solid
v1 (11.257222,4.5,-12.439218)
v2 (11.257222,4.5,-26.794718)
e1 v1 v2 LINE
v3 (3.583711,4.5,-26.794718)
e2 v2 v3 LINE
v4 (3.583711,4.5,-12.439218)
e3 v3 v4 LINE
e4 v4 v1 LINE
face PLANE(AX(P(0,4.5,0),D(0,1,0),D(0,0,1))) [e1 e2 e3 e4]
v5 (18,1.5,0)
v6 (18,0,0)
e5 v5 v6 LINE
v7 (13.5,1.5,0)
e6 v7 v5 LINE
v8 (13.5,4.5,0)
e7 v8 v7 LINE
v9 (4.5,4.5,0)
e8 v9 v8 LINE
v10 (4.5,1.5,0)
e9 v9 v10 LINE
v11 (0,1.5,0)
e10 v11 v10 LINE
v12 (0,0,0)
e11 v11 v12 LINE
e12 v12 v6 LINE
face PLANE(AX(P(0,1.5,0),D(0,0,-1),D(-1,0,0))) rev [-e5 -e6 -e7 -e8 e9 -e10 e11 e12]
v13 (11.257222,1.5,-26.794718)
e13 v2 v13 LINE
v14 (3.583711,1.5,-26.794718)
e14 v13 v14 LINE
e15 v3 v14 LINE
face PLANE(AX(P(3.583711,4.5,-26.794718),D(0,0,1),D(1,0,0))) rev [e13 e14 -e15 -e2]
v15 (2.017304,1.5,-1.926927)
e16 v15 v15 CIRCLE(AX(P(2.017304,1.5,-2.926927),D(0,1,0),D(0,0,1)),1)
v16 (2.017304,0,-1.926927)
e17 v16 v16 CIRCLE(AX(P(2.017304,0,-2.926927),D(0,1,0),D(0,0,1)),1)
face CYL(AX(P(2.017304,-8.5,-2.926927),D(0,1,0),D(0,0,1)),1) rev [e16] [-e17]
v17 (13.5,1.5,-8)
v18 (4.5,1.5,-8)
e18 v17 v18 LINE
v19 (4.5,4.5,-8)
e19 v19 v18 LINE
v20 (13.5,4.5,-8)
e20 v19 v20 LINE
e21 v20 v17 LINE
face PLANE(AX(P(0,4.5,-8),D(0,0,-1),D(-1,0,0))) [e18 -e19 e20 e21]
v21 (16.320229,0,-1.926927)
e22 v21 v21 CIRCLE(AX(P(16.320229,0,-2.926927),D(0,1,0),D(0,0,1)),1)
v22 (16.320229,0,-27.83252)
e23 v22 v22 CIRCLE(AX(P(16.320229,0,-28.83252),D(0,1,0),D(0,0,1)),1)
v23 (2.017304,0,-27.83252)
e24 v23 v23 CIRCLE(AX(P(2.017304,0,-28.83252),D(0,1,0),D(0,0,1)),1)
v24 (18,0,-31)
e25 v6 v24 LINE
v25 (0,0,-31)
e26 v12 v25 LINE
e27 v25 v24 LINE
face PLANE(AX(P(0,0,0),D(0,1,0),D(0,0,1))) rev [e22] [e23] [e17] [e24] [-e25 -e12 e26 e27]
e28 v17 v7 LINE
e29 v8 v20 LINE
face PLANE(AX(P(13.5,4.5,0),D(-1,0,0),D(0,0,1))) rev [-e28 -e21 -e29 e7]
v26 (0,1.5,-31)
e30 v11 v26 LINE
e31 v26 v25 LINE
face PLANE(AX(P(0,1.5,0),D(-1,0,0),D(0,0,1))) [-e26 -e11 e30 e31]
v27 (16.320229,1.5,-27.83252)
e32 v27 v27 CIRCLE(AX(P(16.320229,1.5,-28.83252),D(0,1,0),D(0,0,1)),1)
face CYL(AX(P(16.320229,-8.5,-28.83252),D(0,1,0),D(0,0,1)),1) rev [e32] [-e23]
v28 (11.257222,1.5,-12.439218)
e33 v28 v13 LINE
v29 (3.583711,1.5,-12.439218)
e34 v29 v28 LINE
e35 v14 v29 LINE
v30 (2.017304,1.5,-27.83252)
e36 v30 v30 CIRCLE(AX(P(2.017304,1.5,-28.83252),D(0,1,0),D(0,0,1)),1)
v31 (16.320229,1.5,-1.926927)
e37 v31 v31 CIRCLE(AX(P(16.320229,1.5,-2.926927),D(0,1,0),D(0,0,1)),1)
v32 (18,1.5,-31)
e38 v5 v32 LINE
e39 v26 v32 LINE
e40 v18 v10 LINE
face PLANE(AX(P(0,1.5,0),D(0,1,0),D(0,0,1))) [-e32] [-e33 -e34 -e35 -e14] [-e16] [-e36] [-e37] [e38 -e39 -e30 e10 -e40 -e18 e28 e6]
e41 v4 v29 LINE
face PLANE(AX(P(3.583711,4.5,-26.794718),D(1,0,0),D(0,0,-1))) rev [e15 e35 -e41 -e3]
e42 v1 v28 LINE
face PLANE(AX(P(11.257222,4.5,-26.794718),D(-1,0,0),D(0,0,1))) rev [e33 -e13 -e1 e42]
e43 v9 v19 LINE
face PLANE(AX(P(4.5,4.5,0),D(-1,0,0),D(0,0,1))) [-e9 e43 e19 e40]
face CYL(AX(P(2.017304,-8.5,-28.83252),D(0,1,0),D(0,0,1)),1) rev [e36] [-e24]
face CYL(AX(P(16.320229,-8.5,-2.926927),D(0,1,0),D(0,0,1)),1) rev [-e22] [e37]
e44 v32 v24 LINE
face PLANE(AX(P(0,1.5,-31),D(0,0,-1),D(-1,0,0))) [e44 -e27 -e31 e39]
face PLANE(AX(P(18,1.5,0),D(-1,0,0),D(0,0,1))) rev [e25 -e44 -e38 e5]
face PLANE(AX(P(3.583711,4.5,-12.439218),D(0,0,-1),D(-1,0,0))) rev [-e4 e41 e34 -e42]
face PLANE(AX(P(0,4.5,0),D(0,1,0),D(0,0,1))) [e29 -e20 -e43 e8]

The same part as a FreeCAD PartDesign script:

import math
import FreeCAD as App
import Part
import Sketcher

V = App.Vector
Q = App.Units.Quantity


def add_polygon(sketch, points):
    """Adds a closed chain of lines whose ends are joined by coincident constraints."""
    first, n = sketch.GeometryCount, len(points)
    for a, b in zip(points, points[1:] + points[:1]):
        sketch.addGeometry(Part.LineSegment(App.Vector(*a, 0), App.Vector(*b, 0)), False)
    for i in range(n):
        sketch.addConstraint(Sketcher.Constraint("Coincident", first + i, 2, first + (i + 1) % n, 1))

doc = App.newDocument("Part")
body = doc.addObject("PartDesign::Body", "Body")

# Sketch on XZ plane
sketch1 = body.newObject("Sketcher::SketchObject", "Sketch")
sketch1.AttachmentSupport = (doc.getObject("XZ_Plane"), [""])
sketch1.MapMode = "FlatFace"
add_polygon(sketch1, [(0, -31), (0, 0), (18, 0), (18, -31)])  # lines 0-3
sketch1.addConstraint([
    Sketcher.Constraint("Vertical", 0),
    Sketcher.Constraint("Horizontal", 1),
    Sketcher.Constraint("Vertical", 2),
    Sketcher.Constraint("Horizontal", 3),
    Sketcher.Constraint("Coincident", 0, 2, -1, 1),
    Sketcher.Constraint("DistanceX", 1, 1, 1, 2, Q("18 mm")),
    Sketcher.Constraint("DistanceY", 0, 1, 0, 2, Q("31 mm")),
])
pad1 = body.newObject("PartDesign::Pad", "Pad")
pad1.Profile = sketch1
pad1.Length = 1.5
pad1.Reversed = True

# Sketch on XZ plane
sketch2 = body.newObject("Sketcher::SketchObject", "Sketch001")
sketch2.AttachmentSupport = (doc.getObject("XZ_Plane"), [""])
sketch2.MapMode = "FlatFace"
add_polygon(sketch2, [(4, -8), (4, 0), (14, 0), (14, -8)])  # lines 0-3
sketch2.addConstraint([
    Sketcher.Constraint("Vertical", 0),
    Sketcher.Constraint("Horizontal", 1),
    Sketcher.Constraint("Vertical", 2),
    Sketcher.Constraint("Horizontal", 3),
    Sketcher.Constraint("PointOnObject", 0, 2, -1),
    Sketcher.Constraint("DistanceX", 1, 1, 1, 2, Q("9 mm")),
    Sketcher.Constraint("DistanceY", 0, 1, 0, 2, Q("8 mm")),
    Sketcher.Constraint("DistanceX", -1, 1, 0, 2, Q("4.5 mm")),
])
pad2 = body.newObject("PartDesign::Pad", "Pad001")
pad2.Profile = sketch2
pad2.Length = 4.5
pad2.Reversed = True

# Sketch on XZ plane
sketch3 = body.newObject("Sketcher::SketchObject", "Sketch002")
sketch3.AttachmentSupport = (doc.getObject("XZ_Plane"), [""])
sketch3.MapMode = "FlatFace"
sketch3.AttachmentOffset = App.Placement(V(0, 0, -1.5), App.Rotation())
add_polygon(sketch3, [(4, -27), (4, -12), (11, -12), (11, -27)])  # lines 0-3
sketch3.addConstraint([
    Sketcher.Constraint("Vertical", 0),
    Sketcher.Constraint("Horizontal", 1),
    Sketcher.Constraint("Vertical", 2),
    Sketcher.Constraint("Horizontal", 3),
    Sketcher.Constraint("DistanceY", 0, 1, 0, 2, Q("14.355501 mm")),
    Sketcher.Constraint("DistanceX", 1, 1, 1, 2, Q("7.673511 mm")),
    Sketcher.Constraint("DistanceX", -1, 1, 0, 2, Q("3.583711 mm")),
    Sketcher.Constraint("DistanceY", 2, 2, -1, 1, Q("26.794718 mm")),
])
pad3 = body.newObject("PartDesign::Pad", "Pad002")
pad3.Profile = sketch3
pad3.Length = 3
pad3.Reversed = True

# Sketch on XZ plane
sketch4 = body.newObject("Sketcher::SketchObject", "Sketch003")
sketch4.AttachmentSupport = (doc.getObject("XZ_Plane"), [""])
sketch4.MapMode = "FlatFace"
sketch4.AttachmentOffset = App.Placement(V(0, 0, -1.5), App.Rotation())
sketch4.addGeometry([
    Part.ArcOfCircle(Part.Circle(V(2, -2.9, 0), V(0, 0, 1), 1), math.radians(-90), math.radians(0)),  # 0
    Part.ArcOfCircle(Part.Circle(V(2, -2.9, 0), V(0, 0, 1), 1), math.radians(0), math.radians(270)),  # 1
    Part.ArcOfCircle(Part.Circle(V(16.3, -2.9, 0), V(0, 0, 1), 1), math.radians(-90), math.radians(0)),  # 2
    Part.ArcOfCircle(Part.Circle(V(16.3, -2.9, 0), V(0, 0, 1), 1), math.radians(180), math.radians(270)),  # 3
    Part.ArcOfCircle(Part.Circle(V(16.3, -2.9, 0), V(0, 0, 1), 1), math.radians(0), math.radians(180)),  # 4
    Part.ArcOfCircle(Part.Circle(V(2, -28.8, 0), V(0, 0, 1), 1), math.radians(90), math.radians(360)),  # 5
    Part.ArcOfCircle(Part.Circle(V(2, -28.8, 0), V(0, 0, 1), 1), math.radians(0), math.radians(90)),  # 6
    Part.ArcOfCircle(Part.Circle(V(16.3, -28.8, 0), V(0, 0, 1), 1), math.radians(180), math.radians(360)),  # 7
    Part.ArcOfCircle(Part.Circle(V(16.3, -28.8, 0), V(0, 0, 1), 1), math.radians(90), math.radians(180)),  # 8
    Part.ArcOfCircle(Part.Circle(V(16.3, -28.8, 0), V(0, 0, 1), 1), math.radians(0), math.radians(90)),  # 9
], False)
sketch4.addConstraint([
    Sketcher.Constraint("Tangent", 0, 1, 1, 2),
    Sketcher.Constraint("Coincident", 1, 1, 0, 2),
    Sketcher.Constraint("Tangent", 2, 1, 3, 2),
    Sketcher.Constraint("Tangent", 3, 1, 4, 2),
    Sketcher.Constraint("Tangent", 4, 1, 2, 2),
    Sketcher.Constraint("Tangent", 5, 1, 6, 2),
    Sketcher.Constraint("Coincident", 6, 1, 5, 2),
    Sketcher.Constraint("Tangent", 7, 1, 8, 2),
    Sketcher.Constraint("Tangent", 8, 1, 9, 2),
    Sketcher.Constraint("Tangent", 9, 1, 7, 2),
    Sketcher.Constraint("Equal", 1, 2),
    Sketcher.Constraint("Equal", 4, 5),
    Sketcher.Constraint("Equal", 6, 7),
    Sketcher.Constraint("Horizontal", 1, 3, 2, 3),
    Sketcher.Constraint("Horizontal", 6, 3, 7, 3),
    Sketcher.Constraint("Horizontal", 4, 3, 1, 1),
    Sketcher.Constraint("Horizontal", 1, 1, 3, 1),
    Sketcher.Constraint("Horizontal", 3, 1, 4, 1),
    Sketcher.Constraint("Horizontal", 9, 3, 6, 1),
    Sketcher.Constraint("Horizontal", 6, 1, 7, 1),
    Sketcher.Constraint("Horizontal", 7, 1, 9, 1),
    Sketcher.Constraint("Vertical", 1, 3, 5, 3),
    Sketcher.Constraint("Vertical", 4, 3, 7, 3),
    Sketcher.Constraint("Vertical", 6, 3, 0, 1),
    Sketcher.Constraint("Vertical", 9, 3, 2, 1),
    Sketcher.Constraint("Vertical", 0, 1, 5, 1),
    Sketcher.Constraint("Vertical", 2, 1, 8, 1),
    Sketcher.Constraint("Radius", 0, Q("1 mm")),
    Sketcher.Constraint("DistanceX", -1, 1, 2, 3, Q("16.320229 mm")),
    Sketcher.Constraint("DistanceY", 5, 3, -1, 1, Q("28.83252 mm")),
    Sketcher.Constraint("DistanceX", -1, 1, 0, 3, Q("2.017304 mm")),
    Sketcher.Constraint("DistanceY", 0, 3, -1, 1, Q("2.926927 mm")),
])
pocket1 = body.newObject("PartDesign::Pocket", "Pocket")
pocket1.Profile = sketch4
pocket1.Length = 10
pocket1.Reversed = True

doc.recompute()
